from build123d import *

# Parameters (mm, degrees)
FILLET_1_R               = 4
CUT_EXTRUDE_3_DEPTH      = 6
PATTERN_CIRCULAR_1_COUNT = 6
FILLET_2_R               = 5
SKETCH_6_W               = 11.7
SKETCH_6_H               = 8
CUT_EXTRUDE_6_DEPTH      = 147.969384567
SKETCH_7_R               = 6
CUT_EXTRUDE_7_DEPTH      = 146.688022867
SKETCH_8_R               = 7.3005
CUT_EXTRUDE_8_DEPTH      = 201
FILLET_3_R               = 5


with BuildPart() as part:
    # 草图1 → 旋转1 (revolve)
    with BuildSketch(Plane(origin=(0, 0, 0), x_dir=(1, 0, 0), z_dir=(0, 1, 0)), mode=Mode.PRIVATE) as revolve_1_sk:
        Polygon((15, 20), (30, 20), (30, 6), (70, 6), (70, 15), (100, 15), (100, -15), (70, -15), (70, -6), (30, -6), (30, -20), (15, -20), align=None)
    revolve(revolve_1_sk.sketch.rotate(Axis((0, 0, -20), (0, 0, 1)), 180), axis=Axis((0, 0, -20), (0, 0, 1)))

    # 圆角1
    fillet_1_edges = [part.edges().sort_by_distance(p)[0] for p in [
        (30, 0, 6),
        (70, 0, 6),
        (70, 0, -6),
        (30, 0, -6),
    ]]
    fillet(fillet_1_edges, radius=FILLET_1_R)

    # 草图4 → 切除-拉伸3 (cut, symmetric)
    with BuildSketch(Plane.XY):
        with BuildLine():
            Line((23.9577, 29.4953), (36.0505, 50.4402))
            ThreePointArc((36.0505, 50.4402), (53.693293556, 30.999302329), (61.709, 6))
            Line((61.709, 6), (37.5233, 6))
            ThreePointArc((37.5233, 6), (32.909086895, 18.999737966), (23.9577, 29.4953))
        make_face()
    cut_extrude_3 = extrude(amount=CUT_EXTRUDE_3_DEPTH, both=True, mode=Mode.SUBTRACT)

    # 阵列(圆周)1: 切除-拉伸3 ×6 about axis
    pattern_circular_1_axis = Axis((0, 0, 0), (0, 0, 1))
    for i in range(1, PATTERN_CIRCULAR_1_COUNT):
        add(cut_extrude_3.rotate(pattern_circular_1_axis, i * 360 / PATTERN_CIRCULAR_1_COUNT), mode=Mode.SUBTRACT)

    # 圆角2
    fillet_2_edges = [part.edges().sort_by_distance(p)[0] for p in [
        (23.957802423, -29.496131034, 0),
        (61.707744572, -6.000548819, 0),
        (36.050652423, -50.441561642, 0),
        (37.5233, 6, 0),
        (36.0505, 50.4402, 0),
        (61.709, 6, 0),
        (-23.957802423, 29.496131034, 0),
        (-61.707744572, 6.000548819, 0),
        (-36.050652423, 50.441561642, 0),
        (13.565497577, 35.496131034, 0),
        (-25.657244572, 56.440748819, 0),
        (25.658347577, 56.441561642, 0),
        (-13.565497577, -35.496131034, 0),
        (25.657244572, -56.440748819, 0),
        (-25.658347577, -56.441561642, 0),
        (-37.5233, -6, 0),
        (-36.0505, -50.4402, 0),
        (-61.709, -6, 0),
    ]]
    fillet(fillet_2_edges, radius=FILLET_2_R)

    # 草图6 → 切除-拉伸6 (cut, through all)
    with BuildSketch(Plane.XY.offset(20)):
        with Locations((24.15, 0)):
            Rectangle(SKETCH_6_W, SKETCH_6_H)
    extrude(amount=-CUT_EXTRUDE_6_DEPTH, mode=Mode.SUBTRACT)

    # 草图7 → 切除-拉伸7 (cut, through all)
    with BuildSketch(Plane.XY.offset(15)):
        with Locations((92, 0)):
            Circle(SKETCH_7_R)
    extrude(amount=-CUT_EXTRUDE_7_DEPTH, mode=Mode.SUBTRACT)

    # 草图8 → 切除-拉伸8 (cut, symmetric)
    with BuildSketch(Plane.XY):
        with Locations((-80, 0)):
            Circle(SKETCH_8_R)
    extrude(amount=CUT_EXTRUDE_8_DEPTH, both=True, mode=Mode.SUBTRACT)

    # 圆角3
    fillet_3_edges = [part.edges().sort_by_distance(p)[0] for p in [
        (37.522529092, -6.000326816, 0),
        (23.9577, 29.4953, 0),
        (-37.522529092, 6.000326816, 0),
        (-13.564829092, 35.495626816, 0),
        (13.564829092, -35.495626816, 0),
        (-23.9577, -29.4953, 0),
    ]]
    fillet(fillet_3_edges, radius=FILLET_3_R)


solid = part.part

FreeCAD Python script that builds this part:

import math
import FreeCAD as App
import Part
import Sketcher

V = App.Vector


def edges_at(feature, points):
    """Names of the edges that pass closest to the given points."""
    edges = feature.Shape.Edges
    near = lambda p: min(range(len(edges)), key=lambda i: edges[i].distToShape(Part.Vertex(*p))[0])
    return sorted({f"Edge{near(p) + 1}" for p in points})


def add_polygon(sketch, points):
    """Adds a closed chain of lines whose ends are joined by coincident constraints."""
    first, n = sketch.GeometryCount, len(points)
    for a, b in zip(points, points[1:] + points[:1]):
        sketch.addGeometry(Part.LineSegment(App.Vector(*a, 0), App.Vector(*b, 0)), False)
    for i in range(n):
        sketch.addConstraint(Sketcher.Constraint("Coincident", first + i, 2, first + (i + 1) % n, 1))

doc = App.newDocument("Part")
params = doc.addObject("Spreadsheet::Sheet", "Params")
for row, (alias, value) in enumerate([
    ("sketch1_width", "15 mm"),
    ("sketch1_width2", "40 mm"),
    ("sketch1_width3", "30 mm"),
    ("sketch1_height", "14 mm"),
    ("revolution_angle", "360 deg"),
    ("fillet_radius", "4 mm"),
    ("pocket1_length", "12 mm"),
    ("fillet2_radius", "5 mm"),
    ("sketch3_height", "8 mm"),
    ("sketch3_width", "11.7 mm"),
    ("sketch4_diameter", "12 mm"),
    ("pocket4_length", "402 mm"),
    ("fillet3_radius", "5 mm"),
], start=1):
    params.set(f"A{row}", alias)
    params.set(f"B{row}", "=" + value)
    params.setAlias(f"B{row}", alias)

body = doc.addObject("PartDesign::Body", "Body")

sketch1 = body.newObject("Sketcher::SketchObject", "Sketch")
sketch1.AttachmentSupport = (doc.getObject("XZ_Plane"), [""])
sketch1.MapMode = "FlatFace"
add_polygon(sketch1, [(30, -20), (15, -20), (15, 20), (30, 20), (30, 6), (70, 6), (70, 15), (100, 15), (100, -15), (70, -15), (70, -6), (30, -6)])
sketch1.addConstraint(Sketcher.Constraint("Horizontal", 0))
sketch1.addConstraint(Sketcher.Constraint("Vertical", 1))
sketch1.addConstraint(Sketcher.Constraint("Horizontal", 2))
sketch1.addConstraint(Sketcher.Constraint("Vertical", 3))
sketch1.addConstraint(Sketcher.Constraint("Horizontal", 4))
sketch1.addConstraint(Sketcher.Constraint("Vertical", 5))
sketch1.addConstraint(Sketcher.Constraint("Horizontal", 6))
sketch1.addConstraint(Sketcher.Constraint("Vertical", 7))
sketch1.addConstraint(Sketcher.Constraint("Horizontal", 8))
sketch1.addConstraint(Sketcher.Constraint("Vertical", 9))
sketch1.addConstraint(Sketcher.Constraint("Horizontal", 10))
sketch1.addConstraint(Sketcher.Constraint("Vertical", 11))
sketch1.addConstraint(Sketcher.Constraint("Symmetric", 5, 2, 8, 2, -1))
sketch1.addConstraint(Sketcher.Constraint("Symmetric", 3, 2, 10, 2, -1))
sketch1.addConstraint(Sketcher.Constraint("Equal", 10, 1))
sketch1.addConstraint(Sketcher.Constraint("Equal", 8, 7))
sketch1.addConstraint(Sketcher.Constraint("Equal", 3, 11))
sketch1.addConstraint(Sketcher.Constraint("DistanceX", 0, 2, 0, 1, 15.0))
sketch1.addConstraint(Sketcher.Constraint("DistanceX", 4, 1, 4, 2, 40.0))
sketch1.addConstraint(Sketcher.Constraint("DistanceX", 6, 1, 6, 2, 30.0))
sketch1.addConstraint(Sketcher.Constraint("DistanceY", 3, 2, 3, 1, 14.0))
sketch1.addConstraint(Sketcher.Constraint("DistanceX", -1, 1, 0, 2, 15.0))
sketch1.setExpression("Constraints[29]", "Params.sketch1_width")
sketch1.setExpression("Constraints[30]", "Params.sketch1_width2")
sketch1.setExpression("Constraints[31]", "Params.sketch1_width3")
sketch1.setExpression("Constraints[32]", "Params.sketch1_height")
revolution = body.newObject("PartDesign::Revolution", "Revolution")
revolution.Profile = sketch1
revolution.ReferenceAxis = (sketch1, ["V_Axis"])
revolution.setExpression("Angle", "Params.revolution_angle")
doc.recompute()

fillet = body.newObject("PartDesign::Fillet", "Fillet")
fillet.Base = (revolution, edges_at(revolution, [
    (30, 0, 6),
    (70, 0, 6),
    (70, 0, -6),
    (30, 0, -6),
]))
fillet.setExpression("Radius", "Params.fillet_radius")

sketch2 = body.newObject("Sketcher::SketchObject", "Sketch001")
sketch2.AttachmentSupport = (doc.getObject("XY_Plane"), [""])
sketch2.MapMode = "FlatFace"
sketch2.addGeometry(Part.LineSegment(V(36, 50, 0), V(24, 29, 0)), False)
sketch2.addGeometry(Part.ArcOfCircle(Part.Circle(V(0, 0, 0), V(0, 0, 1), 38), math.radians(9), math.radians(51)), False)
sketch2.addGeometry(Part.LineSegment(V(38, 6, 0), V(62, 6, 0)), False)
sketch2.addGeometry(Part.ArcOfCircle(Part.Circle(V(0, 0, 0), V(0, 0, 1), 62), math.radians(6), math.radians(54)), False)
sketch2.addConstraint(Sketcher.Constraint("Coincident", 0, 2, 1, 2))
sketch2.addConstraint(Sketcher.Constraint("Coincident", 1, 1, 2, 1))
sketch2.addConstraint(Sketcher.Constraint("Coincident", 2, 2, 3, 1))
sketch2.addConstraint(Sketcher.Constraint("Coincident", 3, 2, 0, 1))
sketch2.addConstraint(Sketcher.Constraint("Horizontal", 2))
sketch2.addConstraint(Sketcher.Constraint("DistanceY", -1, 1, 1, 1, 6.0))
sketch2.addConstraint(Sketcher.Constraint("Radius", 1, 37.99459))
sketch2.addConstraint(Sketcher.Constraint("DistanceX", 2, 1, 2, 2, 24.1857))
sketch2.addConstraint(Sketcher.Constraint("DistanceX", -1, 1, 2, 2, 61.709))
sketch2.addConstraint(Sketcher.Constraint("Radius", 3, 61.999406))
sketch2.addConstraint(Sketcher.Constraint("DistanceX", -1, 1, 0, 2, 23.9577))
sketch2.addConstraint(Sketcher.Constraint("DistanceY", -1, 1, 0, 2, 29.4953))
sketch2.addConstraint(Sketcher.Constraint("DistanceX", -1, 1, 3, 2, 36.0505))
sketch2.addConstraint(Sketcher.Constraint("DistanceY", -1, 1, 3, 2, 50.4402))
pocket1 = body.newObject("PartDesign::Pocket", "Pocket")
pocket1.Profile = sketch2
pocket1.setExpression("Length", "Params.pocket1_length")
pocket1.Midplane = True
doc.recompute()

polarpattern = body.newObject("PartDesign::PolarPattern", "PolarPattern")
polarpattern.Originals = [pocket1]
polarpattern.Axis = (doc.getObject("Z_Axis"), [""])
polarpattern.Angle = 360
polarpattern.Occurrences = 6
body.Tip = polarpattern
doc.recompute()

fillet2 = body.newObject("PartDesign::Fillet", "Fillet001")
fillet2.Base = (polarpattern, edges_at(polarpattern, [
    (23.958, -29.496, 0),
    (61.708, -6.001, 0),
    (36.051, -50.442, 0),
    (37.523, 6, 0),
    (36.05, 50.44, 0),
    (61.709, 6, 0),
    (-23.958, 29.496, 0),
    (-61.708, 6.001, 0),
    (-36.051, 50.442, 0),
    (13.565, 35.496, 0),
    (-25.657, 56.441, 0),
    (25.658, 56.442, 0),
    (-13.565, -35.496, 0),
    (25.657, -56.441, 0),
    (-25.658, -56.442, 0),
    (-37.523, -6, 0),
    (-36.05, -50.44, 0),
    (-61.709, -6, 0),
]))
fillet2.setExpression("Radius", "Params.fillet2_radius")

sketch3 = body.newObject("Sketcher::SketchObject", "Sketch002")
sketch3.AttachmentSupport = (doc.getObject("XY_Plane"), [""])
sketch3.MapMode = "FlatFace"
sketch3.AttachmentOffset = App.Placement(V(0, 0, 20), App.Rotation())
add_polygon(sketch3, [(18, 4), (18, -4), (30, -4), (30, 4)])
sketch3.addConstraint(Sketcher.Constraint("Vertical", 0))
sketch3.addConstraint(Sketcher.Constraint("Horizontal", 1))
sketch3.addConstraint(Sketcher.Constraint("Vertical", 2))
sketch3.addConstraint(Sketcher.Constraint("Horizontal", 3))
sketch3.addConstraint(Sketcher.Constraint("DistanceY", 0, 2, 0, 1, 8.0))
sketch3.addConstraint(Sketcher.Constraint("DistanceX", 1, 1, 1, 2, 11.7))
sketch3.addConstraint(Sketcher.Constraint("DistanceY", 0, 2, -1, 1, 4.0))
sketch3.addConstraint(Sketcher.Constraint("DistanceX", -1, 1, 1, 2, 30.0))
sketch3.setExpression("Constraints[8]", "Params.sketch3_height")
sketch3.setExpression("Constraints[9]", "Params.sketch3_width")
pocket2 = body.newObject("PartDesign::Pocket", "Pocket001")
pocket2.Profile = sketch3
pocket2.Type = "ThroughAll"

sketch4 = body.newObject("Sketcher::SketchObject", "Sketch003")
sketch4.AttachmentSupport = (doc.getObject("XY_Plane"), [""])
sketch4.MapMode = "FlatFace"
sketch4.AttachmentOffset = App.Placement(V(0, 0, 15), App.Rotation())
sketch4.addGeometry(Part.Circle(V(92, 0, 0), V(0, 0, 1), 6), False)
sketch4.addConstraint(Sketcher.Constraint("PointOnObject", 0, 3, -1))
sketch4.addConstraint(Sketcher.Constraint("Diameter", 0, 12.0))
sketch4.addConstraint(Sketcher.Constraint("DistanceX", -1, 1, 0, 3, 92.0))
sketch4.setExpression("Constraints[1]", "Params.sketch4_diameter")
pocket3 = body.newObject("PartDesign::Pocket", "Pocket002")
pocket3.Profile = sketch4
pocket3.Type = "ThroughAll"

sketch5 = body.newObject("Sketcher::SketchObject", "Sketch004")
sketch5.AttachmentSupport = (doc.getObject("XY_Plane"), [""])
sketch5.MapMode = "FlatFace"
sketch5.addGeometry(Part.Circle(V(-80, 0, 0), V(0, 0, 1), 7), False)
sketch5.addConstraint(Sketcher.Constraint("PointOnObject", 0, 3, -1))
sketch5.addConstraint(Sketcher.Constraint("Diameter", 0, 14.601))
sketch5.addConstraint(Sketcher.Constraint("DistanceX", 0, 3, -1, 1, 80.0))
pocket4 = body.newObject("PartDesign::Pocket", "Pocket003")
pocket4.Profile = sketch5
pocket4.setExpression("Length", "Params.pocket4_length")
pocket4.Midplane = True
doc.recompute()

fillet3 = body.newObject("PartDesign::Fillet", "Fillet002")
fillet3.Base = (pocket4, edges_at(pocket4, [
    (37.523, -6, 0),
    (23.958, 29.495, 0),
    (-37.523, 6, 0),
    (-13.565, 35.496, 0),
    (13.565, -35.496, 0),
    (-23.958, -29.495, 0),
]))
fillet3.setExpression("Radius", "Params.fillet3_radius")

doc.recompute()
